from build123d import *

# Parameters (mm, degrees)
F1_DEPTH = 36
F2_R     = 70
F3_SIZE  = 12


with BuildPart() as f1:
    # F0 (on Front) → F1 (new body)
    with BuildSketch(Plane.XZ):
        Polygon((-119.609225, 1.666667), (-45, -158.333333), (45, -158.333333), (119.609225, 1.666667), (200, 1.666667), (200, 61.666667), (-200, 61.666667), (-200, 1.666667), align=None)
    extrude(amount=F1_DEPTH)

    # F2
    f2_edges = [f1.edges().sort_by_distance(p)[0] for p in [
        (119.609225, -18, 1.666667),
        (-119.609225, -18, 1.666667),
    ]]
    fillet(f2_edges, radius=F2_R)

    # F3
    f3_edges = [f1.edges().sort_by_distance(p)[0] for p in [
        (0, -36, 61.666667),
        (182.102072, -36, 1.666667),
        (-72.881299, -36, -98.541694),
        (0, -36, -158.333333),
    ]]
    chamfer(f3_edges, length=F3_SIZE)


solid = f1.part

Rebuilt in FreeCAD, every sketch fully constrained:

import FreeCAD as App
import Part
import Sketcher
from FreeCAD import Vector
Q = App.Units.Quantity


def edges_at(feature, points):
    """Names of the edges that pass closest to the given points."""
    edges = feature.Shape.Edges
    near = lambda p: min(range(len(edges)), key=lambda i: edges[i].distToShape(Part.Vertex(*p))[0])
    return sorted({f"Edge{near(p) + 1}" for p in points})


def add_polygon(sketch, points):
    """Adds a closed chain of lines whose ends are joined by coincident constraints."""
    first, n = sketch.GeometryCount, len(points)
    for a, b in zip(points, points[1:] + points[:1]):
        sketch.addGeometry(Part.LineSegment(App.Vector(*a, 0), App.Vector(*b, 0)), False)
    for i in range(n):
        sketch.addConstraint(Sketcher.Constraint("Coincident", first + i, 2, first + (i + 1) % n, 1))

doc = App.newDocument("Part")
body = doc.addObject("PartDesign::Body", "Body")

# Sketch on XZ plane
sketch1 = body.newObject("Sketcher::SketchObject", "Sketch")
sketch1.AttachmentSupport = (doc.getObject("XZ_Plane"), [""])
sketch1.MapMode = "FlatFace"
add_polygon(sketch1, [(-120, 2), (-45, -158), (45, -158), (120, 2), (200, 2), (200, 62), (-200, 62), (-200, 2)])  # lines 0-7
sketch1.addConstraint(Sketcher.Constraint("Horizontal", 1))
sketch1.addConstraint(Sketcher.Constraint("Horizontal", 3))
sketch1.addConstraint(Sketcher.Constraint("Vertical", 4))
sketch1.addConstraint(Sketcher.Constraint("Horizontal", 5))
sketch1.addConstraint(Sketcher.Constraint("Vertical", 6))
sketch1.addConstraint(Sketcher.Constraint("Horizontal", 7))
sketch1.addConstraint(Sketcher.Constraint("Symmetric", 3, 2, 6, 2, -2))
sketch1.addConstraint(Sketcher.Constraint("Equal", 3, 7))
sketch1.addConstraint(Sketcher.Constraint("Equal", 0, 2))
sketch1.addConstraint(Sketcher.Constraint("DistanceX", 1, 1, 1, 2, 90.0))
sketch1.addConstraint(Sketcher.Constraint("DistanceX", 5, 2, 5, 1, 400.0))
sketch1.addConstraint(Sketcher.Constraint("DistanceY", 4, 1, 4, 2, 60.0))
sketch1.addConstraint(Sketcher.Constraint("Angle", 0, Q("-65 deg")))
sketch1.addConstraint(Sketcher.Constraint("DistanceY", 1, 2, 2, 2, 160.0))
sketch1.addConstraint(Sketcher.Constraint("DistanceY", 0, 2, -1, 1, 158.333333))
pad1 = body.newObject("PartDesign::Pad", "Pad")
pad1.Profile = sketch1
pad1.Length = 36
doc.recompute()

fillet = body.newObject("PartDesign::Fillet", "Fillet")
fillet.Base = (pad1, edges_at(pad1, [(119.609, -18, 1.667), (-119.609, -18, 1.667)]))
fillet.Radius = 70
doc.recompute()

chamfer = body.newObject("PartDesign::Chamfer", "Chamfer")
chamfer.Base = (fillet, edges_at(fillet, [
    (0, -36, 61.667),
    (182.102, -36, 1.667),
    (-72.881, -36, -98.542),
    (0, -36, -158.333),
]))
chamfer.Size = 12

doc.recompute()
